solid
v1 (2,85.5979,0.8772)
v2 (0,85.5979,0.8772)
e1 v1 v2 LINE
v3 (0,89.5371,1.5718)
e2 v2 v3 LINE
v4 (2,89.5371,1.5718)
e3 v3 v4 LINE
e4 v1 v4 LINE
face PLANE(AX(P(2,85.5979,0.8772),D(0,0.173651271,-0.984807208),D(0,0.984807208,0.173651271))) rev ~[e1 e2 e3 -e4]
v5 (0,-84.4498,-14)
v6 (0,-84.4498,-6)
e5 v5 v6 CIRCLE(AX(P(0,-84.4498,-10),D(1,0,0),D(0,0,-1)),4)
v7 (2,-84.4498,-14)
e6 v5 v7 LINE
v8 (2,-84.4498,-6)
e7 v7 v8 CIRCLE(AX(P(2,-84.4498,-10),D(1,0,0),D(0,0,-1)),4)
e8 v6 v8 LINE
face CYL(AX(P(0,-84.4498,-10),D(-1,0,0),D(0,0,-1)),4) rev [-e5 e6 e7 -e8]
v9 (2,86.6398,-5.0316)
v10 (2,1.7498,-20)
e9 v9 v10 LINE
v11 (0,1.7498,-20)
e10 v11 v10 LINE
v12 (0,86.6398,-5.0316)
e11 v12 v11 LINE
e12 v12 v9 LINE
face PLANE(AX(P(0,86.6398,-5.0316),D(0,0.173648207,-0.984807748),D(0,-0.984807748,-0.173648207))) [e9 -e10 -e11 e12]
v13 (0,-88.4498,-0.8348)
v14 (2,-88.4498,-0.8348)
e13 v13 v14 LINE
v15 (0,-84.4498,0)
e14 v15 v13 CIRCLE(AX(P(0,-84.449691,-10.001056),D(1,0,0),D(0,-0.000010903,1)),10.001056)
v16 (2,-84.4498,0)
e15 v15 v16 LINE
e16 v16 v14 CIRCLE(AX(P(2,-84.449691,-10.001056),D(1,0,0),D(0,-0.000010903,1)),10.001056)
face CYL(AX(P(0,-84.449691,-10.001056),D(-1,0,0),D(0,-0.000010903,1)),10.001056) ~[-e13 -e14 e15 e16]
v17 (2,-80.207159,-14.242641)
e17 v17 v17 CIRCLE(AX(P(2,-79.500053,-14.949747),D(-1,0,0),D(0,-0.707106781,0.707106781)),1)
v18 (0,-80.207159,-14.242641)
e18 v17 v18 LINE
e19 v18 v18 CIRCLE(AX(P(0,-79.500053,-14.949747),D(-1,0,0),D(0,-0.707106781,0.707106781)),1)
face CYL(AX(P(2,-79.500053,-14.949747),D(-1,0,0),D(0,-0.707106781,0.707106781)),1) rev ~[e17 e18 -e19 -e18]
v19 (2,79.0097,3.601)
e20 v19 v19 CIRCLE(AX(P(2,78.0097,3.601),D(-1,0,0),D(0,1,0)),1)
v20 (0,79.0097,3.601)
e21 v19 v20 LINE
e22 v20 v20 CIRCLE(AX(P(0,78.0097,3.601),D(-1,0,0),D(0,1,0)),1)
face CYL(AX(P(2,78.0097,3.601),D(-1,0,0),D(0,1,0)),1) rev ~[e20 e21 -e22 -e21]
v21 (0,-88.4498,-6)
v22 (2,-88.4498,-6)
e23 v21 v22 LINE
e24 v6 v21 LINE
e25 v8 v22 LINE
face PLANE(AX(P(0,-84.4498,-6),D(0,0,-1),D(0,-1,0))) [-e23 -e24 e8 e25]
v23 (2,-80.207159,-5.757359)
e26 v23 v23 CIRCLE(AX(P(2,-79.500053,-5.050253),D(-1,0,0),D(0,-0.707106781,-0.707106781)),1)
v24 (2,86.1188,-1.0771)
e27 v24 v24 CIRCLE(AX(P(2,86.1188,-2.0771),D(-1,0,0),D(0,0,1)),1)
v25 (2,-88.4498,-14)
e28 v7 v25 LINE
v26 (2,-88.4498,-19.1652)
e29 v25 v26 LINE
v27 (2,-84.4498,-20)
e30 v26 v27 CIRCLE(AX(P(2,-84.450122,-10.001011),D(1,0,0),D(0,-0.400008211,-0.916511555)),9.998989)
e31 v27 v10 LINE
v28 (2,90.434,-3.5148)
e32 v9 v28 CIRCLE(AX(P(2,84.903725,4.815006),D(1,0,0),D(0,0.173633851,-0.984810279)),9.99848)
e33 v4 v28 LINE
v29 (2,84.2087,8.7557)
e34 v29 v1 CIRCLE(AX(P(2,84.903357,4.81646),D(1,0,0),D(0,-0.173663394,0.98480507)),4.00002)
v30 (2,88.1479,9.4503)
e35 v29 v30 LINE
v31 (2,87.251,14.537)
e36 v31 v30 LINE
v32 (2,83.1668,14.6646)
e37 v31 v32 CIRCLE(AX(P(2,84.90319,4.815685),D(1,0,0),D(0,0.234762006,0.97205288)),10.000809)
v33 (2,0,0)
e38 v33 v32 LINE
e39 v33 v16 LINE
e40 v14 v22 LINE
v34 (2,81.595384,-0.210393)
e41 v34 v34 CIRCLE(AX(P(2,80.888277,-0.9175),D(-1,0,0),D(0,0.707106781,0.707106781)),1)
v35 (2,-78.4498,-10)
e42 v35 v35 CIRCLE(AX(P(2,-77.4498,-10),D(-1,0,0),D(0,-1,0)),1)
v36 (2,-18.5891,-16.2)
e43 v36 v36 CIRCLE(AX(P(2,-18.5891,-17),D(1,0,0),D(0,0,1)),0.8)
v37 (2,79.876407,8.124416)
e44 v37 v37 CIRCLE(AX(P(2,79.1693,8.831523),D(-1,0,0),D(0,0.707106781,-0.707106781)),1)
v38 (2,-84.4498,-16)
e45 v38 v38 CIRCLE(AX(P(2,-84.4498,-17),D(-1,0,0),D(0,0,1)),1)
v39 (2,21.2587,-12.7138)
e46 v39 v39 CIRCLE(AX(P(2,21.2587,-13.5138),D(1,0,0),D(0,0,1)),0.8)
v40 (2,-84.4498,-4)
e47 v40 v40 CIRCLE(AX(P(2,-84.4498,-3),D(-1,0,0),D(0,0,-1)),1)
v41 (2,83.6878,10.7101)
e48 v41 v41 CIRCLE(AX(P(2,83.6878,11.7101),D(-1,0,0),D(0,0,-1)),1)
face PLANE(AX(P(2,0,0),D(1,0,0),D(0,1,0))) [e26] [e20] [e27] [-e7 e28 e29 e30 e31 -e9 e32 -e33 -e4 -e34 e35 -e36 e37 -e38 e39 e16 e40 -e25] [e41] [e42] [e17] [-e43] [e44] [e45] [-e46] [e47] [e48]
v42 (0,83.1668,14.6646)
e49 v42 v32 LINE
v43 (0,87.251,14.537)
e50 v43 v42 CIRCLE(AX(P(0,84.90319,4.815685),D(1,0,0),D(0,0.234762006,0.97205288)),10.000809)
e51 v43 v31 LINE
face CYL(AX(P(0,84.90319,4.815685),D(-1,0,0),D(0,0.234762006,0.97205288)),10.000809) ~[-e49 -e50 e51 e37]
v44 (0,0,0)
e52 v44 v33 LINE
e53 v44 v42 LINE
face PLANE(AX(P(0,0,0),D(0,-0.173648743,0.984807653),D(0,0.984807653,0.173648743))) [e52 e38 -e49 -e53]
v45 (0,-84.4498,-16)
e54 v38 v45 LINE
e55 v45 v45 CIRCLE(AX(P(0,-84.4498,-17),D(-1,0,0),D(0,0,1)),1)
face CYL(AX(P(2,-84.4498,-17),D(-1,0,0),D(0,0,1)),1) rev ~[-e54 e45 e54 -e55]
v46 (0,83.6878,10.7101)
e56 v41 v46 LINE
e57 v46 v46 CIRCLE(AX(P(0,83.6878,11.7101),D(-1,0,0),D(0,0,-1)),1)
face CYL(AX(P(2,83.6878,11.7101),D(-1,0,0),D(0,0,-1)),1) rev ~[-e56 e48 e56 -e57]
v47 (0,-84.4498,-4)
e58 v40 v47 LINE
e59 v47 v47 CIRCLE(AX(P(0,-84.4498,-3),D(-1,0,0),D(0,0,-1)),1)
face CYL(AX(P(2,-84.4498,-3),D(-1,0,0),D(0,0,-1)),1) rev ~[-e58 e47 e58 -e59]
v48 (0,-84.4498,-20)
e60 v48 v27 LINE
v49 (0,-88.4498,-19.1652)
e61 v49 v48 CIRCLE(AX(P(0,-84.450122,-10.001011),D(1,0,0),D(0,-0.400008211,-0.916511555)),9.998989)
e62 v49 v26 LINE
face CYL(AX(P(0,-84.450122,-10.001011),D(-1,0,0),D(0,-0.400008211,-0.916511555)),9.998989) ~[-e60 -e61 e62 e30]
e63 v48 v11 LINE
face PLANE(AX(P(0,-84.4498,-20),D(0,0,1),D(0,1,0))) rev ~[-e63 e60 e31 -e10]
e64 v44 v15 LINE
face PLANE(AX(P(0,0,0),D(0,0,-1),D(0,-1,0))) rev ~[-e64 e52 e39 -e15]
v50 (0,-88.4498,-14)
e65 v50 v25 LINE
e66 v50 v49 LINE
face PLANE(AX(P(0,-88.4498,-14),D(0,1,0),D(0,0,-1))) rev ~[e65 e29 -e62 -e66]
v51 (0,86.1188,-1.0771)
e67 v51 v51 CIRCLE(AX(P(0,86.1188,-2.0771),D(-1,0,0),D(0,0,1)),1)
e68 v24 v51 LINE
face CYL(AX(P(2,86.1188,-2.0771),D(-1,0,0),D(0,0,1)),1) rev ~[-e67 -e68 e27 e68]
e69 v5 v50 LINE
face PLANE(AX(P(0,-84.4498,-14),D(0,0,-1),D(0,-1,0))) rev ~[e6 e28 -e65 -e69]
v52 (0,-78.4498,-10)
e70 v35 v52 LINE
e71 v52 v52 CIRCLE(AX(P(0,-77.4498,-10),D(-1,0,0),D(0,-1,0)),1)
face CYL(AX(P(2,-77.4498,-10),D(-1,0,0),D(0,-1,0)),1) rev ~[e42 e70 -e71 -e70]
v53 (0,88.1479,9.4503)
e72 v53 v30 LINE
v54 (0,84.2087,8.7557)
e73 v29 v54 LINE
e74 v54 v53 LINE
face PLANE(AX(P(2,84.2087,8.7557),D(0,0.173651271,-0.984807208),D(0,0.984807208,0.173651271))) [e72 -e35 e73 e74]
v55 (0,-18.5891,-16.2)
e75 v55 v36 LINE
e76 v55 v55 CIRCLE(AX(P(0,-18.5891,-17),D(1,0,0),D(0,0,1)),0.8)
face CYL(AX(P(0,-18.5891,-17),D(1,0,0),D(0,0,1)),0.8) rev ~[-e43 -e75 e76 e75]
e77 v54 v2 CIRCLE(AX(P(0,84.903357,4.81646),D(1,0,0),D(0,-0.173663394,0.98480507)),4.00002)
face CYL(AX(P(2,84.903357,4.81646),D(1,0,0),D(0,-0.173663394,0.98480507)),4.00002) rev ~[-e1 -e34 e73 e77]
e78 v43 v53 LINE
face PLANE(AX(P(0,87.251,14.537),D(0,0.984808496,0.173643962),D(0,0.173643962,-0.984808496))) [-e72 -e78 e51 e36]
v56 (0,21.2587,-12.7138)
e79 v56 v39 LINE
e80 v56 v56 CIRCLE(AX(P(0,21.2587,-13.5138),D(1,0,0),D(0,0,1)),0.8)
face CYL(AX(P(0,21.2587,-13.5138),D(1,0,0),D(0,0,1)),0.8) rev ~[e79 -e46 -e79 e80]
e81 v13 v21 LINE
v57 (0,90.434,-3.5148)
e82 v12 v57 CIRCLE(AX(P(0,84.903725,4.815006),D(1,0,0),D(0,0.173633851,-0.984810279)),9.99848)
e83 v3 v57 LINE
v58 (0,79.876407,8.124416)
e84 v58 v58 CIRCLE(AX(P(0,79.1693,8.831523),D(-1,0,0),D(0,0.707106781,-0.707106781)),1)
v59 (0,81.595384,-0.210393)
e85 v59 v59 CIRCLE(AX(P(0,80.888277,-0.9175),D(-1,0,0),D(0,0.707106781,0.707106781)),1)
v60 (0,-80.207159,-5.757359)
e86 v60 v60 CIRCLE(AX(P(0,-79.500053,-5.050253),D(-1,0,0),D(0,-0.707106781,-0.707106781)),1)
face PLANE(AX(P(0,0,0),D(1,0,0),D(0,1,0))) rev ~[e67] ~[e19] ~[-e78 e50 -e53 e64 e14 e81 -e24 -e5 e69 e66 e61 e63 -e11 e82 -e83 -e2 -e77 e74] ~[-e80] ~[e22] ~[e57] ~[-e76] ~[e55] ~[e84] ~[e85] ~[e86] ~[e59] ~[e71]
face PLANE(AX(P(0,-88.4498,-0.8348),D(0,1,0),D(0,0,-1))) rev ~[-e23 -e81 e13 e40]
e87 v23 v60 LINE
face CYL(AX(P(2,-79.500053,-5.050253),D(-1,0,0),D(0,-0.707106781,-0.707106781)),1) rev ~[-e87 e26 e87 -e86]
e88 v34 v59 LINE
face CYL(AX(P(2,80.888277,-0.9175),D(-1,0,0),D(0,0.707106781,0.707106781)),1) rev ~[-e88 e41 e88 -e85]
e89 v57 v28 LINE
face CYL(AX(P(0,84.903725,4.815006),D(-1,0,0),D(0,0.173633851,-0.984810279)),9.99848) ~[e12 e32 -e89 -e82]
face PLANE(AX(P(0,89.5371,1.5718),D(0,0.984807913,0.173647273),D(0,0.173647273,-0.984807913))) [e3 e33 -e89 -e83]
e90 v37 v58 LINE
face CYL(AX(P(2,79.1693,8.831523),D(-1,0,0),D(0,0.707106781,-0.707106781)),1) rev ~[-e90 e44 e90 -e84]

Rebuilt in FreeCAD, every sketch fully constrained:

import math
import FreeCAD as App
import Part
import Sketcher

V = App.Vector
Q = App.Units.Quantity

doc = App.newDocument("Part")
body = doc.addObject("PartDesign::Body", "Body")

sketch1 = body.newObject("Sketcher::SketchObject", "Sketch")
sketch1.AttachmentSupport = (doc.getObject("YZ_Plane"), [""])
sketch1.MapMode = "FlatFace"
sketch1.addGeometry([
    Part.LineSegment(V(-84.4, -20, 0), V(1.7, -20, 0)),
    Part.LineSegment(V(1.7, -20, 0), V(86.6, -5, 0)),
    Part.ArcOfCircle(Part.Circle(V(84.9, 4.8, 0), V(0, 0, 1), 10), math.radians(-80), math.radians(-56)),
    Part.LineSegment(V(90.4, -3.5, 0), V(89.5, 1.6, 0)),
    Part.LineSegment(V(89.5, 1.6, 0), V(88.1, 9.5, 0)),
    Part.LineSegment(V(88.1, 9.5, 0), V(87.3, 14.5, 0)),
    Part.ArcOfCircle(Part.Circle(V(84.9, 4.8, 0), V(0, 0, 1), 10), math.radians(76), math.radians(100)),
    Part.LineSegment(V(83.2, 14.7, 0), V(0, 0, 0)),
    Part.LineSegment(V(0, 0, 0), V(-84.4, 0, 0)),
    Part.ArcOfCircle(Part.Circle(V(-84.4, -10, 0), V(0, 0, 1), 10), math.radians(90), math.radians(114)),
    Part.LineSegment(V(-88.4, -0.8, 0), V(-88.4, -6, 0)),
    Part.LineSegment(V(-88.4, -6, 0), V(-84.4, -6, 0)),
    Part.ArcOfCircle(Part.Circle(V(-84.4, -10, 0), V(0, 0, 1), 4), math.radians(-90), math.radians(90)),
    Part.LineSegment(V(-84.4, -14, 0), V(-88.4, -14, 0)),
    Part.LineSegment(V(-88.4, -14, 0), V(-88.4, -19.2, 0)),
    Part.ArcOfCircle(Part.Circle(V(-84.5, -10, 0), V(0, 0, 1), 10), math.radians(-114), math.radians(-90)),
], False)
sketch1.addConstraint([
    Sketcher.Constraint("Coincident", 0, 2, 1, 1),
    Sketcher.Constraint("Tangent", 1, 2, 2, 1),
    Sketcher.Constraint("Coincident", 2, 2, 3, 1),
    Sketcher.Constraint("Coincident", 3, 2, 4, 1),
    Sketcher.Constraint("Coincident", 4, 2, 5, 1),
    Sketcher.Constraint("Coincident", 5, 2, 6, 1),
    Sketcher.Constraint("Tangent", 6, 2, 7, 1),
    Sketcher.Constraint("Coincident", 7, 2, 8, 1),
    Sketcher.Constraint("Tangent", 8, 2, 9, 1),
    Sketcher.Constraint("Coincident", 9, 2, 10, 1),
    Sketcher.Constraint("Coincident", 10, 2, 11, 1),
    Sketcher.Constraint("Tangent", 11, 2, 12, 2),
    Sketcher.Constraint("Tangent", 12, 1, 13, 1),
    Sketcher.Constraint("Coincident", 13, 2, 14, 1),
    Sketcher.Constraint("Coincident", 14, 2, 15, 1),
    Sketcher.Constraint("Tangent", 15, 2, 0, 1),
    Sketcher.Constraint("Horizontal", 0),
    Sketcher.Constraint("Horizontal", 8),
    Sketcher.Constraint("Vertical", 10),
    Sketcher.Constraint("Horizontal", 11),
    Sketcher.Constraint("Horizontal", 13),
    Sketcher.Constraint("Vertical", 14),
    Sketcher.Constraint("Coincident", 7, 2, -1, 1),
    Sketcher.Constraint("Perpendicular", 1, 3),
    Sketcher.Constraint("Parallel", 3, 4),
    Sketcher.Constraint("Parallel", 4, 5),
    Sketcher.Constraint("Perpendicular", 5, 7),
    Sketcher.Constraint("Horizontal", 9, 3, 15, 3),
    Sketcher.Constraint("Vertical", 9, 3, 12, 3),
    Sketcher.Constraint("Vertical", 10, 2, 13, 2),
    Sketcher.Constraint("Vertical", 12, 1, 15, 2),
    Sketcher.Constraint("Equal", 10, 14),
    Sketcher.Constraint("Equal", 3, 5),
    Sketcher.Constraint("Radius", 6, 10.0),
    Sketcher.Constraint("Radius", 12, 4.0),
    Sketcher.Constraint("DistanceX", 11, 1, 11, 2, 4.0),
    Sketcher.Constraint("Angle", 1, Q("10 deg")),
    Sketcher.Constraint("Distance", 4, 8.0),
    Sketcher.Constraint("DistanceY", 12, 3, -1, 1, 10.0),
    Sketcher.Constraint("DistanceY", 0, 2, -1, 1, 20.0),
    Sketcher.Constraint("Radius", 2, 9.9985),
    Sketcher.Constraint("DistanceX", 15, 3, 0, 2, 86.2),
    Sketcher.Constraint("DistanceX", 0, 2, 1, 2, 84.89),
    Sketcher.Constraint("Distance", 3, 5.165),
    Sketcher.Constraint("DistanceX", 8, 2, 8, 1, 84.4498),
    Sketcher.Constraint("DistanceX", -1, 1, 2, 2, 90.434),
])
pad1 = body.newObject("PartDesign::Pad", "Pad")
pad1.Profile = sketch1
pad1.Length = 2

sketch2 = body.newObject("Sketcher::SketchObject", "Sketch001")
sketch2.AttachmentSupport = (doc.getObject("YZ_Plane"), [""])
sketch2.MapMode = "FlatFace"
sketch2.addGeometry([
    Part.Circle(V(-18.6, -17, 0), V(0, 0, 1), 0.8),
    Part.Circle(V(21.3, -13.5, 0), V(0, 0, 1), 0.8),
], False)
sketch2.addConstraint([
    Sketcher.Constraint("Equal", 0, 1),
    Sketcher.Constraint("Diameter", 0, 1.6),
    Sketcher.Constraint("DistanceY", 0, 3, -1, 1, 17.0),
    Sketcher.Constraint("DistanceX", 0, 3, -1, 1, 18.589),
    Sketcher.Constraint("DistanceX", -1, 1, 1, 3, 21.2587),
    Sketcher.Constraint("DistanceY", 1, 3, -1, 1, 13.5138),
])
doc.recompute()
hole = body.newObject("PartDesign::Hole", "Hole")
hole.Profile = sketch2
hole.ThreadType = "None"
hole.Diameter = 1.6
hole.DepthType = "ThroughAll"
hole.Reversed = True

sketch3 = body.newObject("Sketcher::SketchObject", "Sketch002")
sketch3.AttachmentSupport = (doc.getObject("YZ_Plane"), [""])
sketch3.MapMode = "FlatFace"
sketch3.AttachmentOffset = App.Placement(V(0, 0, 2), App.Rotation())
sketch3.addGeometry(Part.Circle(V(-84.4, -3, 0), V(0, 0, 1), 1), False)
sketch3.addConstraint([
    Sketcher.Constraint("Diameter", 0, 2.0),
    Sketcher.Constraint("DistanceY", 0, 3, -1, 1, 3.0),
    Sketcher.Constraint("DistanceX", 0, 3, -1, 1, 84.4498),
])
doc.recompute()
hole2 = body.newObject("PartDesign::Hole", "Hole001")
hole2.Profile = sketch3
hole2.ThreadType = "None"
hole2.Diameter = 2
hole2.DepthType = "ThroughAll"
doc.recompute()

datumline = body.newObject("PartDesign::Line", "DatumLine")
datumline.Placement = App.Placement(V(0, -84.4498, -10), App.Rotation(V(0, 0, 1), V(1, 0, 0)))
polarpattern = body.newObject("PartDesign::PolarPattern", "PolarPattern")
polarpattern.Originals = [hole2]
polarpattern.Axis = (datumline, [""])
polarpattern.Angle = 180
polarpattern.Occurrences = 5
polarpattern.Reversed = True
body.Tip = polarpattern

sketch4 = body.newObject("Sketcher::SketchObject", "Sketch003")
sketch4.AttachmentSupport = (doc.getObject("YZ_Plane"), [""])
sketch4.MapMode = "FlatFace"
sketch4.AttachmentOffset = App.Placement(V(0, 0, 2), App.Rotation())
sketch4.addGeometry([
    Part.LineSegment(V(85.6, 0.9, 0), V(89.5, 1.6, 0)),
    Part.LineSegment(V(89.5, 1.6, 0), V(88.1, 9.5, 0)),
    Part.LineSegment(V(88.1, 9.5, 0), V(84.2, 8.8, 0)),
    Part.ArcOfCircle(Part.Circle(V(84.9, 4.8, 0), V(0, 0, 1), 4), math.radians(100), math.radians(280)),
], False)
sketch4.addConstraint([
    Sketcher.Constraint("Coincident", 0, 2, 1, 1),
    Sketcher.Constraint("Coincident", 1, 2, 2, 1),
    Sketcher.Constraint("Tangent", 2, 2, 3, 1),
    Sketcher.Constraint("Tangent", 3, 2, 0, 1),
    Sketcher.Constraint("Perpendicular", 0, 1),
    Sketcher.Constraint("Perpendicular", 1, 2),
    Sketcher.Constraint("Radius", 3, 4.0),
    Sketcher.Constraint("Angle", 0, Q("10.0002 deg")),
    Sketcher.Constraint("Distance", 0, 4.0),
    Sketcher.Constraint("DistanceX", -1, 1, 0, 2, 89.537),
    Sketcher.Constraint("DistanceY", -1, 1, 3, 3, 4.8165),
])
pocket1 = body.newObject("PartDesign::Pocket", "Pocket")
pocket1.Profile = sketch4
pocket1.Length = 2

sketch5 = body.newObject("Sketcher::SketchObject", "Sketch004")
sketch5.AttachmentSupport = (doc.getObject("YZ_Plane"), [""])
sketch5.MapMode = "FlatFace"
sketch5.AttachmentOffset = App.Placement(V(0, 0, 2), App.Rotation())
sketch5.addGeometry(Part.Circle(V(83.7, 11.7, 0), V(0, 0, 1), 1), False)
sketch5.addConstraint([
    Sketcher.Constraint("Diameter", 0, 2.0),
    Sketcher.Constraint("DistanceY", -1, 1, 0, 3, 11.71),
    Sketcher.Constraint("DistanceX", -1, 1, 0, 3, 83.6878),
])
doc.recompute()
hole3 = body.newObject("PartDesign::Hole", "Hole002")
hole3.Profile = sketch5
hole3.ThreadType = "None"
hole3.Diameter = 2
hole3.DepthType = "ThroughAll"
doc.recompute()

datumline2 = body.newObject("PartDesign::Line", "DatumLine001")
datumline2.Placement = App.Placement(V(0, 84.9033, 4.8165), App.Rotation(V(0, 0, 1), V(1, 0, 0)))
polarpattern2 = body.newObject("PartDesign::PolarPattern", "PolarPattern001")
polarpattern2.Originals = [hole3]
polarpattern2.Axis = (datumline2, [""])
polarpattern2.Angle = 180
polarpattern2.Occurrences = 5
body.Tip = polarpattern2

doc.recompute()
